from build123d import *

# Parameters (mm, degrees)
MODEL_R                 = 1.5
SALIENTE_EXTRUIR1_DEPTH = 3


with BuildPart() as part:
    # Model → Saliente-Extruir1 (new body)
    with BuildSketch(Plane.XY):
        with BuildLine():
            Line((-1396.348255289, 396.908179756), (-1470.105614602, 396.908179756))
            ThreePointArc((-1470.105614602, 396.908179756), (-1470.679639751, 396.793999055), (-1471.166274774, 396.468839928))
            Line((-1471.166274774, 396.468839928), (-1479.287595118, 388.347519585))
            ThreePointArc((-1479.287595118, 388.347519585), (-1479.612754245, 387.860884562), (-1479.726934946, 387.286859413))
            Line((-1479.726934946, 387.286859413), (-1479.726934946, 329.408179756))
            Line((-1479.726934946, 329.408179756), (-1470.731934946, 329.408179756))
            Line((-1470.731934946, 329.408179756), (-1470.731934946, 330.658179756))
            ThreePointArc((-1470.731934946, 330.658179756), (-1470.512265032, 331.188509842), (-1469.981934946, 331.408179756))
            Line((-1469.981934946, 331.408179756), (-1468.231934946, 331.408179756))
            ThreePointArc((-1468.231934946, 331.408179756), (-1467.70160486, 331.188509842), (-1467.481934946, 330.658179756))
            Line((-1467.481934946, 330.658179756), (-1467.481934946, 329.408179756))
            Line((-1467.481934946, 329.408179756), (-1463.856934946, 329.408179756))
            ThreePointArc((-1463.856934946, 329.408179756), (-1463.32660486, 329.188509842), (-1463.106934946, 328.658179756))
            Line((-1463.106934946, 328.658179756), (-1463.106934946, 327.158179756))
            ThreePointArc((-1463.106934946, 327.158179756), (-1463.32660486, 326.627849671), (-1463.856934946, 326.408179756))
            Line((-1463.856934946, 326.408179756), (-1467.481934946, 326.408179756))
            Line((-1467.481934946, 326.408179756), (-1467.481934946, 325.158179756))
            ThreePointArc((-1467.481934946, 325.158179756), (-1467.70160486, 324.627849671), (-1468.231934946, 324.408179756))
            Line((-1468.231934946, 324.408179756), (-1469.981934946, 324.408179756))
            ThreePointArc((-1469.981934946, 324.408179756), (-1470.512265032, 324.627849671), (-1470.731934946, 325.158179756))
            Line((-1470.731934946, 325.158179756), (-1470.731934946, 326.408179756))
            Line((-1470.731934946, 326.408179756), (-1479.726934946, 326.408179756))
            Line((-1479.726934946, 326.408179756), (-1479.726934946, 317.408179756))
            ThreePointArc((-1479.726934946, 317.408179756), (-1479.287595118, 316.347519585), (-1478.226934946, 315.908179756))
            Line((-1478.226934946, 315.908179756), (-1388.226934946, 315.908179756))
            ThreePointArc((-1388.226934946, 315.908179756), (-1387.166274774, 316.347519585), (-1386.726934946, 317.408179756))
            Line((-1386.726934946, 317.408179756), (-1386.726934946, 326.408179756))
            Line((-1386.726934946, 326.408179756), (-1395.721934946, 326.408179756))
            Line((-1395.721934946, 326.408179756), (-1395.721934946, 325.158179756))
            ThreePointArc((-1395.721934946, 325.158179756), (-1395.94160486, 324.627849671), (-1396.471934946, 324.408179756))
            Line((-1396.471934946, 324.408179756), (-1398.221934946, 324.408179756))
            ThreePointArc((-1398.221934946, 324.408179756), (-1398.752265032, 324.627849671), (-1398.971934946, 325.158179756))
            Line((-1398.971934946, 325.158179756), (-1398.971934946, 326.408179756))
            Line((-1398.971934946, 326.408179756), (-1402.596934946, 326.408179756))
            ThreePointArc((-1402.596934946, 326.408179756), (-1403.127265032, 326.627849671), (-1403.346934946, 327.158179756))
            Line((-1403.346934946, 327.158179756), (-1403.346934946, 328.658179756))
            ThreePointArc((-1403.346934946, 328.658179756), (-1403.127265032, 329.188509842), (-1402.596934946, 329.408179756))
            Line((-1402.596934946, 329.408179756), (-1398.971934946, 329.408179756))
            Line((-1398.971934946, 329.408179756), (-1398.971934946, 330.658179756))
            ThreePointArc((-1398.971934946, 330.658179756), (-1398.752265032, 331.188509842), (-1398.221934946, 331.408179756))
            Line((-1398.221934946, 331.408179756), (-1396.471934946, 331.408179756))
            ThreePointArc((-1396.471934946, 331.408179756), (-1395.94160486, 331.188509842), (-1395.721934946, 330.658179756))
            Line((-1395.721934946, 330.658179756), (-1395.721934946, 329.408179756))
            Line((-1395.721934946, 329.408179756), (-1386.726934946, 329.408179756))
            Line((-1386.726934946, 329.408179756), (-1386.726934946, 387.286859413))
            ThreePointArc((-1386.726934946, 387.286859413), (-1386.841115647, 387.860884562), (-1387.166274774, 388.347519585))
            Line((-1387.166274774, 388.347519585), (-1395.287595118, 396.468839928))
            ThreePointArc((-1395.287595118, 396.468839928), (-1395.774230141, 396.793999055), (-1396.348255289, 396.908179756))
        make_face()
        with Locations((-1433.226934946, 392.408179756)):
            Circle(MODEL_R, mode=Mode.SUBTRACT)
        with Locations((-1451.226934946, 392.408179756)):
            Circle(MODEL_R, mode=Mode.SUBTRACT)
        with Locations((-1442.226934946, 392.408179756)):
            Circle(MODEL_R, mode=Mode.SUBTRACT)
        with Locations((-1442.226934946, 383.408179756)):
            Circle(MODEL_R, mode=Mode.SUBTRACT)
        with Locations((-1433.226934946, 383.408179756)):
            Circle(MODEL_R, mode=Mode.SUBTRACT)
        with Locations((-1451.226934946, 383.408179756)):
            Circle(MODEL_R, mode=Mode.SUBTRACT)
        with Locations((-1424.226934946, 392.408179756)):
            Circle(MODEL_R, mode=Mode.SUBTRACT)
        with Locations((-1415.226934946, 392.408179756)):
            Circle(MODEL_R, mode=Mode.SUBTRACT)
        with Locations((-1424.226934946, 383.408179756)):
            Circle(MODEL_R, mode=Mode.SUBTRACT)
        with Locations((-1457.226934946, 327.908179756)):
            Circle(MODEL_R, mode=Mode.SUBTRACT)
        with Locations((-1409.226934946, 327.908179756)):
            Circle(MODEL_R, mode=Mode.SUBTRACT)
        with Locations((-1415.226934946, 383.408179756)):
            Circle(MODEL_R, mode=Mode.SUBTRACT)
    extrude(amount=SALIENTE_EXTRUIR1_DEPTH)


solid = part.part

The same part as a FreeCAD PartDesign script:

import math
import FreeCAD as App
import Part
import Sketcher

V = App.Vector

doc = App.newDocument("Part")
body = doc.addObject("PartDesign::Body", "Body")

# Sketch on XY plane
sketch1 = doc.addObject("Sketcher::SketchObject", "Sketch")
body.addObject(sketch1)
sketch1.AttachmentSupport = (doc.XY_Plane, [""])
sketch1.MapMode = "FlatFace"
sketch1.addGeometry([
    Part.LineSegment(V(-1396.348255, 396.90818, 0), V(-1470.105615, 396.90818, 0)),  # 0
    Part.ArcOfCircle(Part.Circle(V(-1470.105615, 395.40818, 0), V(0, 0, 1), 1.5), math.radians(90), math.radians(135)),  # 1
    Part.LineSegment(V(-1471.166275, 396.46884, 0), V(-1479.287595, 388.34752, 0)),  # 2
    Part.ArcOfCircle(Part.Circle(V(-1478.226935, 387.286859, 0), V(0, 0, 1), 1.5), math.radians(135), math.radians(180)),  # 3
    Part.LineSegment(V(-1479.726935, 387.286859, 0), V(-1479.726935, 329.40818, 0)),  # 4
    Part.LineSegment(V(-1479.726935, 329.40818, 0), V(-1470.731935, 329.40818, 0)),  # 5
    Part.LineSegment(V(-1470.731935, 329.40818, 0), V(-1470.731935, 330.65818, 0)),  # 6
    Part.ArcOfCircle(Part.Circle(V(-1469.981935, 330.65818, 0), V(0, 0, 1), 0.75), math.radians(90), math.radians(180)),  # 7
    Part.LineSegment(V(-1469.981935, 331.40818, 0), V(-1468.231935, 331.40818, 0)),  # 8
    Part.ArcOfCircle(Part.Circle(V(-1468.231935, 330.65818, 0), V(0, 0, 1), 0.75), math.radians(0), math.radians(90)),  # 9
    Part.LineSegment(V(-1467.481935, 330.65818, 0), V(-1467.481935, 329.40818, 0)),  # 10
    Part.LineSegment(V(-1467.481935, 329.40818, 0), V(-1463.856935, 329.40818, 0)),  # 11
    Part.ArcOfCircle(Part.Circle(V(-1463.856935, 328.65818, 0), V(0, 0, 1), 0.75), math.radians(0), math.radians(90)),  # 12
    Part.LineSegment(V(-1463.106935, 328.65818, 0), V(-1463.106935, 327.15818, 0)),  # 13
    Part.ArcOfCircle(Part.Circle(V(-1463.856935, 327.15818, 0), V(0, 0, 1), 0.75), math.radians(-90), math.radians(0)),  # 14
    Part.LineSegment(V(-1463.856935, 326.40818, 0), V(-1467.481935, 326.40818, 0)),  # 15
    Part.LineSegment(V(-1467.481935, 326.40818, 0), V(-1467.481935, 325.15818, 0)),  # 16
    Part.ArcOfCircle(Part.Circle(V(-1468.231935, 325.15818, 0), V(0, 0, 1), 0.75), math.radians(-90), math.radians(0)),  # 17
    Part.LineSegment(V(-1468.231935, 324.40818, 0), V(-1469.981935, 324.40818, 0)),  # 18
    Part.ArcOfCircle(Part.Circle(V(-1469.981935, 325.15818, 0), V(0, 0, 1), 0.75), math.radians(-180), math.radians(-90)),  # 19
    Part.LineSegment(V(-1470.731935, 325.15818, 0), V(-1470.731935, 326.40818, 0)),  # 20
    Part.LineSegment(V(-1470.731935, 326.40818, 0), V(-1479.726935, 326.40818, 0)),  # 21
    Part.LineSegment(V(-1479.726935, 326.40818, 0), V(-1479.726935, 317.40818, 0)),  # 22
    Part.ArcOfCircle(Part.Circle(V(-1478.226935, 317.40818, 0), V(0, 0, 1), 1.5), math.radians(-180), math.radians(-90)),  # 23
    Part.LineSegment(V(-1478.226935, 315.90818, 0), V(-1388.226935, 315.90818, 0)),  # 24
    Part.ArcOfCircle(Part.Circle(V(-1388.226935, 317.40818, 0), V(0, 0, 1), 1.5), math.radians(-90), math.radians(0)),  # 25
    Part.LineSegment(V(-1386.726935, 317.40818, 0), V(-1386.726935, 326.40818, 0)),  # 26
    Part.LineSegment(V(-1386.726935, 326.40818, 0), V(-1395.721935, 326.40818, 0)),  # 27
    Part.LineSegment(V(-1395.721935, 326.40818, 0), V(-1395.721935, 325.15818, 0)),  # 28
    Part.ArcOfCircle(Part.Circle(V(-1396.471935, 325.15818, 0), V(0, 0, 1), 0.75), math.radians(-90), math.radians(0)),  # 29
    Part.LineSegment(V(-1396.471935, 324.40818, 0), V(-1398.221935, 324.40818, 0)),  # 30
    Part.ArcOfCircle(Part.Circle(V(-1398.221935, 325.15818, 0), V(0, 0, 1), 0.75), math.radians(-180), math.radians(-90)),  # 31
    Part.LineSegment(V(-1398.971935, 325.15818, 0), V(-1398.971935, 326.40818, 0)),  # 32
    Part.LineSegment(V(-1398.971935, 326.40818, 0), V(-1402.596935, 326.40818, 0)),  # 33
    Part.ArcOfCircle(Part.Circle(V(-1402.596935, 327.15818, 0), V(0, 0, 1), 0.75), math.radians(-180), math.radians(-90)),  # 34
    Part.LineSegment(V(-1403.346935, 327.15818, 0), V(-1403.346935, 328.65818, 0)),  # 35
    Part.ArcOfCircle(Part.Circle(V(-1402.596935, 328.65818, 0), V(0, 0, 1), 0.75), math.radians(90), math.radians(180)),  # 36
    Part.LineSegment(V(-1402.596935, 329.40818, 0), V(-1398.971935, 329.40818, 0)),  # 37
    Part.LineSegment(V(-1398.971935, 329.40818, 0), V(-1398.971935, 330.65818, 0)),  # 38
    Part.ArcOfCircle(Part.Circle(V(-1398.221935, 330.65818, 0), V(0, 0, 1), 0.75), math.radians(90), math.radians(180)),  # 39
    Part.LineSegment(V(-1398.221935, 331.40818, 0), V(-1396.471935, 331.40818, 0)),  # 40
    Part.ArcOfCircle(Part.Circle(V(-1396.471935, 330.65818, 0), V(0, 0, 1), 0.75), math.radians(0), math.radians(90)),  # 41
    Part.LineSegment(V(-1395.721935, 330.65818, 0), V(-1395.721935, 329.40818, 0)),  # 42
    Part.LineSegment(V(-1395.721935, 329.40818, 0), V(-1386.726935, 329.40818, 0)),  # 43
    Part.LineSegment(V(-1386.726935, 329.40818, 0), V(-1386.726935, 387.286859, 0)),  # 44
    Part.ArcOfCircle(Part.Circle(V(-1388.226935, 387.286859, 0), V(0, 0, 1), 1.5), math.radians(0), math.radians(45)),  # 45
    Part.LineSegment(V(-1387.166275, 388.34752, 0), V(-1395.287595, 396.46884, 0)),  # 46
    Part.ArcOfCircle(Part.Circle(V(-1396.348255, 395.40818, 0), V(0, 0, 1), 1.5), math.radians(45), math.radians(90)),  # 47
    Part.Circle(V(-1457.226935, 327.90818, 0), V(0, 0, 1), 1.5),  # 48
    Part.Circle(V(-1409.226935, 327.90818, 0), V(0, 0, 1), 1.5),  # 49
    Part.Circle(V(-1451.226935, 383.40818, 0), V(0, 0, 1), 1.5),  # 50
    Part.Circle(V(-1451.226935, 392.40818, 0), V(0, 0, 1), 1.5),  # 51
    Part.Circle(V(-1442.226935, 383.40818, 0), V(0, 0, 1), 1.5),  # 52
    Part.Circle(V(-1442.226935, 392.40818, 0), V(0, 0, 1), 1.5),  # 53
    Part.Circle(V(-1433.226935, 383.40818, 0), V(0, 0, 1), 1.5),  # 54
    Part.Circle(V(-1424.226935, 383.40818, 0), V(0, 0, 1), 1.5),  # 55
    Part.Circle(V(-1433.226935, 392.40818, 0), V(0, 0, 1), 1.5),  # 56
    Part.Circle(V(-1424.226935, 392.40818, 0), V(0, 0, 1), 1.5),  # 57
    Part.Circle(V(-1415.226935, 383.40818, 0), V(0, 0, 1), 1.5),  # 58
    Part.Circle(V(-1415.226935, 392.40818, 0), V(0, 0, 1), 1.5),  # 59
], False)
sketch1.addConstraint([
    Sketcher.Constraint("Tangent", 0, 2, 1, 1),
    Sketcher.Constraint("Tangent", 1, 2, 2, 1),
    Sketcher.Constraint("Tangent", 2, 2, 3, 1),
    Sketcher.Constraint("Tangent", 3, 2, 4, 1),
    Sketcher.Constraint("Coincident", 4, 2, 5, 1),
    Sketcher.Constraint("Coincident", 5, 2, 6, 1),
    Sketcher.Constraint("Tangent", 6, 2, 7, 2),
    Sketcher.Constraint("Tangent", 7, 1, 8, 1),
    Sketcher.Constraint("Tangent", 8, 2, 9, 2),
    Sketcher.Constraint("Tangent", 9, 1, 10, 1),
    Sketcher.Constraint("Coincident", 10, 2, 11, 1),
    Sketcher.Constraint("Tangent", 11, 2, 12, 2),
    Sketcher.Constraint("Tangent", 12, 1, 13, 1),
    Sketcher.Constraint("Tangent", 13, 2, 14, 2),
    Sketcher.Constraint("Tangent", 14, 1, 15, 1),
    Sketcher.Constraint("Coincident", 15, 2, 16, 1),
    Sketcher.Constraint("Tangent", 16, 2, 17, 2),
    Sketcher.Constraint("Tangent", 17, 1, 18, 1),
    Sketcher.Constraint("Tangent", 18, 2, 19, 2),
    Sketcher.Constraint("Tangent", 19, 1, 20, 1),
    Sketcher.Constraint("Coincident", 20, 2, 21, 1),
    Sketcher.Constraint("Coincident", 21, 2, 22, 1),
    Sketcher.Constraint("Tangent", 22, 2, 23, 1),
    Sketcher.Constraint("Tangent", 23, 2, 24, 1),
    Sketcher.Constraint("Tangent", 24, 2, 25, 1),
    Sketcher.Constraint("Tangent", 25, 2, 26, 1),
    Sketcher.Constraint("Coincident", 26, 2, 27, 1),
    Sketcher.Constraint("Coincident", 27, 2, 28, 1),
    Sketcher.Constraint("Tangent", 28, 2, 29, 2),
    Sketcher.Constraint("Tangent", 29, 1, 30, 1),
    Sketcher.Constraint("Tangent", 30, 2, 31, 2),
    Sketcher.Constraint("Tangent", 31, 1, 32, 1),
    Sketcher.Constraint("Coincident", 32, 2, 33, 1),
    Sketcher.Constraint("Tangent", 33, 2, 34, 2),
    Sketcher.Constraint("Tangent", 34, 1, 35, 1),
    Sketcher.Constraint("Tangent", 35, 2, 36, 2),
    Sketcher.Constraint("Tangent", 36, 1, 37, 1),
    Sketcher.Constraint("Coincident", 37, 2, 38, 1),
    Sketcher.Constraint("Tangent", 38, 2, 39, 2),
    Sketcher.Constraint("Tangent", 39, 1, 40, 1),
    Sketcher.Constraint("Tangent", 40, 2, 41, 2),
    Sketcher.Constraint("Tangent", 41, 1, 42, 1),
    Sketcher.Constraint("Coincident", 42, 2, 43, 1),
    Sketcher.Constraint("Coincident", 43, 2, 44, 1),
    Sketcher.Constraint("Tangent", 44, 2, 45, 1),
    Sketcher.Constraint("Tangent", 45, 2, 46, 1),
    Sketcher.Constraint("Tangent", 46, 2, 47, 1),
    Sketcher.Constraint("Tangent", 47, 2, 0, 1),
    Sketcher.Constraint("Horizontal", 0),
    Sketcher.Constraint("Vertical", 4),
    Sketcher.Constraint("Horizontal", 5),
    Sketcher.Constraint("Vertical", 6),
    Sketcher.Constraint("Horizontal", 8),
    Sketcher.Constraint("Vertical", 10),
    Sketcher.Constraint("Horizontal", 11),
    Sketcher.Constraint("Vertical", 13),
    Sketcher.Constraint("Horizontal", 15),
    Sketcher.Constraint("Vertical", 16),
    Sketcher.Constraint("Horizontal", 18),
    Sketcher.Constraint("Vertical", 20),
    Sketcher.Constraint("Horizontal", 21),
    Sketcher.Constraint("Vertical", 22),
    Sketcher.Constraint("Horizontal", 24),
    Sketcher.Constraint("Vertical", 26),
    Sketcher.Constraint("Horizontal", 27),
    Sketcher.Constraint("Vertical", 28),
    Sketcher.Constraint("Horizontal", 30),
    Sketcher.Constraint("Vertical", 32),
    Sketcher.Constraint("Horizontal", 33),
    Sketcher.Constraint("Vertical", 35),
    Sketcher.Constraint("Horizontal", 37),
    Sketcher.Constraint("Vertical", 38),
    Sketcher.Constraint("Horizontal", 40),
    Sketcher.Constraint("Vertical", 42),
    Sketcher.Constraint("Horizontal", 43),
    Sketcher.Constraint("Vertical", 44),
    Sketcher.Constraint("Equal", 1, 3),
    Sketcher.Constraint("Equal", 7, 9),
    Sketcher.Constraint("Equal", 9, 12),
    Sketcher.Constraint("Equal", 12, 14),
    Sketcher.Constraint("Equal", 14, 17),
    Sketcher.Constraint("Equal", 17, 19),
    Sketcher.Constraint("Equal", 3, 23),
    Sketcher.Constraint("Equal", 23, 25),
    Sketcher.Constraint("Equal", 19, 29),
    Sketcher.Constraint("Equal", 29, 31),
    Sketcher.Constraint("Equal", 31, 34),
    Sketcher.Constraint("Equal", 34, 36),
    Sketcher.Constraint("Equal", 36, 39),
    Sketcher.Constraint("Equal", 39, 41),
    Sketcher.Constraint("Equal", 25, 45),
    Sketcher.Constraint("Equal", 45, 47),
    Sketcher.Constraint("Equal", 47, 48),
    Sketcher.Constraint("Equal", 48, 49),
    Sketcher.Constraint("Equal", 49, 50),
    Sketcher.Constraint("Equal", 50, 51),
    Sketcher.Constraint("Equal", 51, 52),
    Sketcher.Constraint("Equal", 52, 53),
    Sketcher.Constraint("Equal", 53, 54),
    Sketcher.Constraint("Equal", 54, 55),
    Sketcher.Constraint("Equal", 55, 56),
    Sketcher.Constraint("Equal", 56, 57),
    Sketcher.Constraint("Equal", 57, 58),
    Sketcher.Constraint("Equal", 58, 59),
    Sketcher.Constraint("Perpendicular", 2, 46),
    Sketcher.Constraint("Horizontal", 19, 3, 29, 3),
    Sketcher.Constraint("Horizontal", 14, 3, 34, 3),
    Sketcher.Constraint("Horizontal", 12, 3, 36, 3),
    Sketcher.Constraint("Horizontal", 9, 3, 39, 3),
    Sketcher.Constraint("Horizontal", 3, 3, 45, 3),
    Sketcher.Constraint("Horizontal", 48, 3, 49, 3),
    Sketcher.Constraint("Horizontal", 50, 3, 52, 3),
    Sketcher.Constraint("Horizontal", 51, 3, 53, 3),
    Sketcher.Constraint("Horizontal", 52, 3, 54, 3),
    Sketcher.Constraint("Horizontal", 54, 3, 55, 3),
    Sketcher.Constraint("Horizontal", 53, 3, 56, 3),
    Sketcher.Constraint("Horizontal", 56, 3, 57, 3),
    Sketcher.Constraint("Horizontal", 55, 3, 58, 3),
    Sketcher.Constraint("Horizontal", 57, 3, 59, 3),
    Sketcher.Constraint("Horizontal", 5, 2, 10, 2),
    Sketcher.Constraint("Horizontal", 15, 2, 20, 2),
    Sketcher.Constraint("Horizontal", 21, 2, 26, 2),
    Sketcher.Constraint("Horizontal", 37, 2, 42, 2),
    Sketcher.Constraint("Horizontal", 2, 2, 45, 2),
    Sketcher.Constraint("Vertical", 9, 3, 17, 3),
    Sketcher.Constraint("Vertical", 7, 3, 19, 3),
    Sketcher.Constraint("Vertical", 3, 3, 23, 3),
    Sketcher.Constraint("Vertical", 31, 3, 39, 3),
    Sketcher.Constraint("Vertical", 29, 3, 41, 3),
    Sketcher.Constraint("Vertical", 25, 3, 45, 3),
    Sketcher.Constraint("Vertical", 50, 3, 51, 3),
    Sketcher.Constraint("Vertical", 52, 3, 53, 3),
    Sketcher.Constraint("Vertical", 54, 3, 56, 3),
    Sketcher.Constraint("Vertical", 55, 3, 57, 3),
    Sketcher.Constraint("Vertical", 58, 3, 59, 3),
    Sketcher.Constraint("Equal", 21, 27),
    Sketcher.Constraint("Equal", 18, 30),
    Sketcher.Constraint("Equal", 15, 33),
    Sketcher.Constraint("Equal", 10, 16),
    Sketcher.Constraint("Diameter", 48, 3.0),
    Sketcher.Constraint("DistanceX", 24, 1, 24, 2, 90.0),
    Sketcher.Constraint("DistanceY", 22, 2, 22, 1, 9.0),
    Sketcher.Constraint("Radius", 7, 0.75),
    Sketcher.Constraint("DistanceY", 13, 2, 13, 1, 1.5),
    Sketcher.Constraint("DistanceX", 8, 1, 8, 2, 1.75),
    Sketcher.Constraint("DistanceY", 6, 1, 6, 2, 1.25),
    Sketcher.Constraint("DistanceX", 5, 1, 5, 2, 8.995),
    Sketcher.Constraint("DistanceX", 11, 1, 11, 2, 3.625),
    Sketcher.Constraint("DistanceX", 0, 2, 0, 1, 73.757359),
    Sketcher.Constraint("DistanceY", 4, 2, 4, 1, 57.87868),
    Sketcher.Constraint("DistanceY", -1, 1, 1, 3, 395.40818),
    Sketcher.Constraint("DistanceY", -1, 1, 48, 3, 327.90818),
    Sketcher.Constraint("DistanceY", -1, 1, 50, 3, 383.40818),
    Sketcher.Constraint("DistanceY", -1, 1, 51, 3, 392.40818),
    Sketcher.Constraint("DistanceX", 1, 3, -1, 1, 1470.105615),
    Sketcher.Constraint("DistanceX", 48, 3, -1, 1, 1457.226935),
    Sketcher.Constraint("DistanceX", 49, 3, -1, 1, 1409.226935),
    Sketcher.Constraint("DistanceX", 50, 3, -1, 1, 1451.226935),
    Sketcher.Constraint("DistanceX", 52, 3, -1, 1, 1442.226935),
    Sketcher.Constraint("DistanceX", 54, 3, -1, 1, 1433.226935),
    Sketcher.Constraint("DistanceX", 55, 3, -1, 1, 1424.226935),
    Sketcher.Constraint("DistanceX", 58, 3, -1, 1, 1415.226935),
])
pad1 = doc.addObject("PartDesign::Pad", "Pad")
body.addObject(pad1)
pad1.Profile = sketch1
pad1.Length = 3

doc.recompute()
